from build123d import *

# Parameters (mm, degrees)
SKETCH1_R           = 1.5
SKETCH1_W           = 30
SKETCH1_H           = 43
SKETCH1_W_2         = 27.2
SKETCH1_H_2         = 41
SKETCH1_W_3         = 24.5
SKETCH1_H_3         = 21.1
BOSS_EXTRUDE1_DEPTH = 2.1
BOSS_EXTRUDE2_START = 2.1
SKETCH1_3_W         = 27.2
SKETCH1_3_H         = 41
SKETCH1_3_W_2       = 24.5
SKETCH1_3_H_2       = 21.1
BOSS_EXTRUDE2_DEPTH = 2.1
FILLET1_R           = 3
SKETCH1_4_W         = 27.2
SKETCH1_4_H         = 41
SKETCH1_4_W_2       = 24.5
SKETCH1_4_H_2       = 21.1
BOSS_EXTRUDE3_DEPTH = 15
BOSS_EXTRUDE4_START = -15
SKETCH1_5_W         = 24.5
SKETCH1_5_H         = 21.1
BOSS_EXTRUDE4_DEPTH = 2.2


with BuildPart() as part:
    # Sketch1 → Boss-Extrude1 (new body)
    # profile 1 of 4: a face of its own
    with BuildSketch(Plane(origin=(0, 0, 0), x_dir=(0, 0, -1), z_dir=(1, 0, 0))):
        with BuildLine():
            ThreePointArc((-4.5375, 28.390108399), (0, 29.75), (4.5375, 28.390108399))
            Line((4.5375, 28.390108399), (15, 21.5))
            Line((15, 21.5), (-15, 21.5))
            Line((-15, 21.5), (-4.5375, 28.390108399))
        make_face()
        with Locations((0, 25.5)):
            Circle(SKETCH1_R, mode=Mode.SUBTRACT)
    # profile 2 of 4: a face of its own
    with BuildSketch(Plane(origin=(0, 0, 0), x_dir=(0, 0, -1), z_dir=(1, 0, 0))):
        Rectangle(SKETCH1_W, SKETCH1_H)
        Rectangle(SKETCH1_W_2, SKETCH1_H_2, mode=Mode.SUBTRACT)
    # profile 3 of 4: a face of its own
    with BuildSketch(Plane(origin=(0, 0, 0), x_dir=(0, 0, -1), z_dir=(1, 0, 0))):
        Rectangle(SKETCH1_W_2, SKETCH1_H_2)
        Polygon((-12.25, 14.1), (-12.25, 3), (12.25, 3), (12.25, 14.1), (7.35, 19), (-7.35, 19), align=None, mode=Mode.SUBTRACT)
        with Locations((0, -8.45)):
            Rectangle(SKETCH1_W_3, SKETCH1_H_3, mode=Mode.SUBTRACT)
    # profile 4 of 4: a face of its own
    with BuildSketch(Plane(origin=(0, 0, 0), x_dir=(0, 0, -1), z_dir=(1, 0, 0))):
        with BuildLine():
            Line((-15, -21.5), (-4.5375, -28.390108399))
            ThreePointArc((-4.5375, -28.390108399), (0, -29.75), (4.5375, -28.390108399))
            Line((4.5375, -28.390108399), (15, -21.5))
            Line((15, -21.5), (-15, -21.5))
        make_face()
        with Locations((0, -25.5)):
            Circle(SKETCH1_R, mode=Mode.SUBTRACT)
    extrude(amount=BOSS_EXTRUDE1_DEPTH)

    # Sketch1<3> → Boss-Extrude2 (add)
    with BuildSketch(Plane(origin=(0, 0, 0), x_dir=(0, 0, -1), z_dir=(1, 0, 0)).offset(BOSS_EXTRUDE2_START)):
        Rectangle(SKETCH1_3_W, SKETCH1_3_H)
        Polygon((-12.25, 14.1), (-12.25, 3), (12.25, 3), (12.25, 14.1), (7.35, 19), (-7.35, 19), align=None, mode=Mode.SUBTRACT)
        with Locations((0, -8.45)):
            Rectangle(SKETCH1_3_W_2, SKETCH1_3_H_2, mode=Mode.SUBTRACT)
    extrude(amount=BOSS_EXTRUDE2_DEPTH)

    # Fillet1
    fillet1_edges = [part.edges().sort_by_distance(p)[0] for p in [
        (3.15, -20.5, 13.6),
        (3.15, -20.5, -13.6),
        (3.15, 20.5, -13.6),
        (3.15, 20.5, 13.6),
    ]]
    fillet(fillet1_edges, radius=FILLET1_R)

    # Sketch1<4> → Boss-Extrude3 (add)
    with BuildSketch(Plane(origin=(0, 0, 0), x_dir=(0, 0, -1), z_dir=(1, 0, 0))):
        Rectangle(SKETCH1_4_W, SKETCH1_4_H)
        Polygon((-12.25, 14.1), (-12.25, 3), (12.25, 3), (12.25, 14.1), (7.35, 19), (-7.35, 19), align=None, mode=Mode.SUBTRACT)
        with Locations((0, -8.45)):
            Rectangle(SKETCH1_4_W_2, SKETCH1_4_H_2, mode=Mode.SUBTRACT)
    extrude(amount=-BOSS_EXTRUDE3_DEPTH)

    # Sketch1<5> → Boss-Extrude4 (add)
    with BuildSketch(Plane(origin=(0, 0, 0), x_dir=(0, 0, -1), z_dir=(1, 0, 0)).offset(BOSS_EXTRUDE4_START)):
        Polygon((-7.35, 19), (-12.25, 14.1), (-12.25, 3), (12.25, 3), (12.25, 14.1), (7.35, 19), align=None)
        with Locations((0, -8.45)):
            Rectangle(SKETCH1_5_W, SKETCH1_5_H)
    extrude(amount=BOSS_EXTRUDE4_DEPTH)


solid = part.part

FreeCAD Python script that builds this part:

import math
import FreeCAD as App
import Part
import Sketcher


def edges_at(feature, points):
    """Names of the edges that pass closest to the given points."""
    edges = feature.Shape.Edges
    near = lambda p: min(range(len(edges)), key=lambda i: edges[i].distToShape(Part.Vertex(*p))[0])
    return sorted({f"Edge{near(p) + 1}" for p in points})

doc = App.newDocument("Part")
body = doc.addObject("PartDesign::Body", "Body")

# Sketch on YZ plane
sketch1 = doc.addObject("Sketcher::SketchObject", "Sketch")
body.addObject(sketch1)
sketch1.AttachmentSupport = (doc.YZ_Plane, [""])
sketch1.MapMode = "FlatFace"
sketch1.addGeometry([
    Part.ArcOfCircle(Part.Circle(App.Vector(21.5, 0, 0), App.Vector(0, 0, 1), 8.2), math.radians(-33), math.radians(33)),  # 0
    Part.LineSegment(App.Vector(28.4, 4.5, 0), App.Vector(21.5, 15, 0)),  # 1
    Part.LineSegment(App.Vector(21.5, 15, 0), App.Vector(-21.5, 15, 0)),  # 2
    Part.LineSegment(App.Vector(-21.5, 15, 0), App.Vector(-28.4, 4.5, 0)),  # 3
    Part.ArcOfCircle(Part.Circle(App.Vector(-21.5, 0, 0), App.Vector(0, 0, 1), 8.2), math.radians(147), math.radians(213)),  # 4
    Part.LineSegment(App.Vector(-28.4, -4.5, 0), App.Vector(-21.5, -15, 0)),  # 5
    Part.LineSegment(App.Vector(-21.5, -15, 0), App.Vector(21.5, -15, 0)),  # 6
    Part.LineSegment(App.Vector(21.5, -15, 0), App.Vector(28.4, -4.5, 0)),  # 7
    Part.Circle(App.Vector(25.5, 0, 0), App.Vector(0, 0, 1), 1.5),  # 8
    Part.Circle(App.Vector(-25.5, 0, 0), App.Vector(0, 0, 1), 1.5),  # 9
    Part.LineSegment(App.Vector(19, -7.3, 0), App.Vector(14.1, -12.2, 0)),  # 10
    Part.LineSegment(App.Vector(14.1, -12.2, 0), App.Vector(3, -12.2, 0)),  # 11
    Part.LineSegment(App.Vector(3, -12.2, 0), App.Vector(3, 12.2, 0)),  # 12
    Part.LineSegment(App.Vector(3, 12.2, 0), App.Vector(14.1, 12.2, 0)),  # 13
    Part.LineSegment(App.Vector(14.1, 12.2, 0), App.Vector(19, 7.3, 0)),  # 14
    Part.LineSegment(App.Vector(19, 7.3, 0), App.Vector(19, -7.3, 0)),  # 15
    Part.LineSegment(App.Vector(-19, -12.2, 0), App.Vector(-19, 12.2, 0)),  # 16
    Part.LineSegment(App.Vector(-19, 12.2, 0), App.Vector(2.1, 12.2, 0)),  # 17
    Part.LineSegment(App.Vector(2.1, 12.2, 0), App.Vector(2.1, -12.2, 0)),  # 18
    Part.LineSegment(App.Vector(2.1, -12.2, 0), App.Vector(-19, -12.2, 0)),  # 19
], False)
sketch1.addConstraint([
    Sketcher.Constraint("Tangent", 0, 2, 1, 1),
    Sketcher.Constraint("Coincident", 1, 2, 2, 1),
    Sketcher.Constraint("Coincident", 2, 2, 3, 1),
    Sketcher.Constraint("Tangent", 3, 2, 4, 1),
    Sketcher.Constraint("Tangent", 4, 2, 5, 1),
    Sketcher.Constraint("Coincident", 5, 2, 6, 1),
    Sketcher.Constraint("Coincident", 6, 2, 7, 1),
    Sketcher.Constraint("Tangent", 7, 2, 0, 1),
    Sketcher.Constraint("Coincident", 10, 2, 11, 1),
    Sketcher.Constraint("Coincident", 11, 2, 12, 1),
    Sketcher.Constraint("Coincident", 12, 2, 13, 1),
    Sketcher.Constraint("Coincident", 13, 2, 14, 1),
    Sketcher.Constraint("Coincident", 14, 2, 15, 1),
    Sketcher.Constraint("Coincident", 15, 2, 10, 1),
    Sketcher.Constraint("Coincident", 16, 2, 17, 1),
    Sketcher.Constraint("Coincident", 17, 2, 18, 1),
    Sketcher.Constraint("Coincident", 18, 2, 19, 1),
    Sketcher.Constraint("Coincident", 19, 2, 16, 1),
    Sketcher.Constraint("Horizontal", 2),
    Sketcher.Constraint("Horizontal", 6),
    Sketcher.Constraint("Horizontal", 11),
    Sketcher.Constraint("Vertical", 12),
    Sketcher.Constraint("Horizontal", 13),
    Sketcher.Constraint("Vertical", 15),
    Sketcher.Constraint("Vertical", 16),
    Sketcher.Constraint("Horizontal", 17),
    Sketcher.Constraint("Vertical", 18),
    Sketcher.Constraint("Horizontal", 19),
    Sketcher.Constraint("Equal", 0, 4),
    Sketcher.Constraint("Equal", 8, 9),
    Sketcher.Constraint("Symmetric", 0, 3, 4, 3, -1, 1),
    Sketcher.Constraint("Symmetric", 8, 3, 9, 3, -1, 1),
    Sketcher.Constraint("Symmetric", 1, 2, 5, 2, -1, 1),
    Sketcher.Constraint("Symmetric", 0, 2, 3, 2, -2),
    Sketcher.Constraint("Symmetric", 10, 2, 13, 2, -1),
    Sketcher.Constraint("PointOnObject", 8, 3, -1),
    Sketcher.Constraint("Parallel", 3, 7),
    Sketcher.Constraint("Perpendicular", 10, 14),
    Sketcher.Constraint("Horizontal", 13, 2, 16, 2),
    Sketcher.Constraint("Horizontal", 11, 2, 18, 2),
    Sketcher.Constraint("Vertical", 0, 3, 1, 2),
    Sketcher.Constraint("Equal", 10, 14),
    Sketcher.Constraint("Diameter", 8, 3.0),
    Sketcher.Constraint("DistanceX", 2, 2, 2, 1, 43.0),
    Sketcher.Constraint("Radius", 0, 8.25),
    Sketcher.Constraint("DistanceX", 11, 2, 11, 1, 11.1),
    Sketcher.Constraint("DistanceX", 17, 1, 17, 2, 21.1),
    Sketcher.Constraint("DistanceY", 12, 1, 12, 2, 24.5),
    Sketcher.Constraint("DistanceY", 15, 2, 15, 1, 14.7),
    Sketcher.Constraint("DistanceY", -1, 1, 1, 2, 15.0),
    Sketcher.Constraint("DistanceX", -1, 1, 11, 2, 3.0),
    Sketcher.Constraint("DistanceX", 16, 2, -1, 1, 19.0),
    Sketcher.Constraint("DistanceX", 0, 3, 8, 3, 4.0),
])
pad1 = doc.addObject("PartDesign::Pad", "Pad")
body.addObject(pad1)
pad1.Profile = sketch1
pad1.Length = 2.1

# Sketch on YZ plane
sketch2 = doc.addObject("Sketcher::SketchObject", "Sketch001")
body.addObject(sketch2)
sketch2.AttachmentSupport = (doc.YZ_Plane, [""])
sketch2.MapMode = "FlatFace"
sketch2.AttachmentOffset = App.Placement(App.Vector(0, 0, 2.1), App.Rotation())
sketch2.addGeometry([
    Part.LineSegment(App.Vector(20, 14, 0), App.Vector(-20, 14, 0)),  # 0
    Part.LineSegment(App.Vector(-20, 14, 0), App.Vector(-20, -14, 0)),  # 1
    Part.LineSegment(App.Vector(-20, -14, 0), App.Vector(20, -14, 0)),  # 2
    Part.LineSegment(App.Vector(20, -14, 0), App.Vector(20, 14, 0)),  # 3
    Part.LineSegment(App.Vector(-19, -12, 0), App.Vector(-19, 12, 0)),  # 4
    Part.LineSegment(App.Vector(-19, 12, 0), App.Vector(2, 12, 0)),  # 5
    Part.LineSegment(App.Vector(2, 12, 0), App.Vector(2, -12, 0)),  # 6
    Part.LineSegment(App.Vector(2, -12, 0), App.Vector(-19, -12, 0)),  # 7
    Part.LineSegment(App.Vector(3, 12, 0), App.Vector(14, 12, 0)),  # 8
    Part.LineSegment(App.Vector(14, 12, 0), App.Vector(19, 7, 0)),  # 9
    Part.LineSegment(App.Vector(19, 7, 0), App.Vector(19, -7, 0)),  # 10
    Part.LineSegment(App.Vector(19, -7, 0), App.Vector(14, -12, 0)),  # 11
    Part.LineSegment(App.Vector(14, -12, 0), App.Vector(3, -12, 0)),  # 12
    Part.LineSegment(App.Vector(3, -12, 0), App.Vector(3, 12, 0)),  # 13
], False)
sketch2.addConstraint([
    Sketcher.Constraint("Coincident", 0, 2, 1, 1),
    Sketcher.Constraint("Coincident", 1, 2, 2, 1),
    Sketcher.Constraint("Coincident", 2, 2, 3, 1),
    Sketcher.Constraint("Coincident", 3, 2, 0, 1),
    Sketcher.Constraint("Coincident", 4, 2, 5, 1),
    Sketcher.Constraint("Coincident", 5, 2, 6, 1),
    Sketcher.Constraint("Coincident", 6, 2, 7, 1),
    Sketcher.Constraint("Coincident", 7, 2, 4, 1),
    Sketcher.Constraint("Coincident", 8, 2, 9, 1),
    Sketcher.Constraint("Coincident", 9, 2, 10, 1),
    Sketcher.Constraint("Coincident", 10, 2, 11, 1),
    Sketcher.Constraint("Coincident", 11, 2, 12, 1),
    Sketcher.Constraint("Coincident", 12, 2, 13, 1),
    Sketcher.Constraint("Coincident", 13, 2, 8, 1),
    Sketcher.Constraint("Horizontal", 0),
    Sketcher.Constraint("Vertical", 1),
    Sketcher.Constraint("Horizontal", 2),
    Sketcher.Constraint("Vertical", 3),
    Sketcher.Constraint("Vertical", 4),
    Sketcher.Constraint("Horizontal", 5),
    Sketcher.Constraint("Vertical", 6),
    Sketcher.Constraint("Horizontal", 7),
    Sketcher.Constraint("Horizontal", 8),
    Sketcher.Constraint("Vertical", 10),
    Sketcher.Constraint("Horizontal", 12),
    Sketcher.Constraint("Vertical", 13),
    Sketcher.Constraint("Symmetric", 0, 2, 2, 2, -1, 1),
    Sketcher.Constraint("Symmetric", 8, 2, 11, 2, -1),
    Sketcher.Constraint("Perpendicular", 9, 11),
    Sketcher.Constraint("Horizontal", 5, 2, 8, 2),
    Sketcher.Constraint("Horizontal", 7, 2, 11, 2),
    Sketcher.Constraint("Equal", 9, 11),
    Sketcher.Constraint("DistanceX", 0, 2, 0, 1, 41.0),
    Sketcher.Constraint("DistanceX", 5, 1, 5, 2, 21.1),
    Sketcher.Constraint("DistanceX", 8, 1, 8, 2, 11.1),
    Sketcher.Constraint("DistanceY", 1, 2, 1, 1, 27.2),
    Sketcher.Constraint("DistanceY", 4, 1, 4, 2, 24.5),
    Sketcher.Constraint("DistanceY", 10, 2, 10, 1, 14.7),
    Sketcher.Constraint("DistanceX", 4, 2, -1, 1, 19.0),
    Sketcher.Constraint("DistanceX", -1, 1, 9, 2, 19.0),
])
pad2 = doc.addObject("PartDesign::Pad", "Pad001")
body.addObject(pad2)
pad2.Profile = sketch2
pad2.Length = 2.1
doc.recompute()

fillet = doc.addObject("PartDesign::Fillet", "Fillet")
body.addObject(fillet)
fillet.Base = (pad2, edges_at(pad2, [
    (3.15, -20.5, 13.6),
    (3.15, -20.5, -13.6),
    (3.15, 20.5, -13.6),
    (3.15, 20.5, 13.6),
]))
fillet.Radius = 3

# Sketch on YZ plane
sketch3 = doc.addObject("Sketcher::SketchObject", "Sketch002")
body.addObject(sketch3)
sketch3.AttachmentSupport = (doc.YZ_Plane, [""])
sketch3.MapMode = "FlatFace"
sketch3.addGeometry([
    Part.LineSegment(App.Vector(20, 14, 0), App.Vector(-20, 14, 0)),  # 0
    Part.LineSegment(App.Vector(-20, 14, 0), App.Vector(-20, -14, 0)),  # 1
    Part.LineSegment(App.Vector(-20, -14, 0), App.Vector(20, -14, 0)),  # 2
    Part.LineSegment(App.Vector(20, -14, 0), App.Vector(20, 14, 0)),  # 3
    Part.LineSegment(App.Vector(-19, -12, 0), App.Vector(-19, 12, 0)),  # 4
    Part.LineSegment(App.Vector(-19, 12, 0), App.Vector(2, 12, 0)),  # 5
    Part.LineSegment(App.Vector(2, 12, 0), App.Vector(2, -12, 0)),  # 6
    Part.LineSegment(App.Vector(2, -12, 0), App.Vector(-19, -12, 0)),  # 7
    Part.LineSegment(App.Vector(3, 12, 0), App.Vector(14, 12, 0)),  # 8
    Part.LineSegment(App.Vector(14, 12, 0), App.Vector(19, 7, 0)),  # 9
    Part.LineSegment(App.Vector(19, 7, 0), App.Vector(19, -7, 0)),  # 10
    Part.LineSegment(App.Vector(19, -7, 0), App.Vector(14, -12, 0)),  # 11
    Part.LineSegment(App.Vector(14, -12, 0), App.Vector(3, -12, 0)),  # 12
    Part.LineSegment(App.Vector(3, -12, 0), App.Vector(3, 12, 0)),  # 13
], False)
sketch3.addConstraint([
    Sketcher.Constraint("Coincident", 0, 2, 1, 1),
    Sketcher.Constraint("Coincident", 1, 2, 2, 1),
    Sketcher.Constraint("Coincident", 2, 2, 3, 1),
    Sketcher.Constraint("Coincident", 3, 2, 0, 1),
    Sketcher.Constraint("Coincident", 4, 2, 5, 1),
    Sketcher.Constraint("Coincident", 5, 2, 6, 1),
    Sketcher.Constraint("Coincident", 6, 2, 7, 1),
    Sketcher.Constraint("Coincident", 7, 2, 4, 1),
    Sketcher.Constraint("Coincident", 8, 2, 9, 1),
    Sketcher.Constraint("Coincident", 9, 2, 10, 1),
    Sketcher.Constraint("Coincident", 10, 2, 11, 1),
    Sketcher.Constraint("Coincident", 11, 2, 12, 1),
    Sketcher.Constraint("Coincident", 12, 2, 13, 1),
    Sketcher.Constraint("Coincident", 13, 2, 8, 1),
    Sketcher.Constraint("Horizontal", 0),
    Sketcher.Constraint("Vertical", 1),
    Sketcher.Constraint("Horizontal", 2),
    Sketcher.Constraint("Vertical", 3),
    Sketcher.Constraint("Vertical", 4),
    Sketcher.Constraint("Horizontal", 5),
    Sketcher.Constraint("Vertical", 6),
    Sketcher.Constraint("Horizontal", 7),
    Sketcher.Constraint("Horizontal", 8),
    Sketcher.Constraint("Vertical", 10),
    Sketcher.Constraint("Horizontal", 12),
    Sketcher.Constraint("Vertical", 13),
    Sketcher.Constraint("Symmetric", 0, 2, 2, 2, -1, 1),
    Sketcher.Constraint("Symmetric", 8, 2, 11, 2, -1),
    Sketcher.Constraint("Perpendicular", 9, 11),
    Sketcher.Constraint("Horizontal", 5, 2, 8, 2),
    Sketcher.Constraint("Horizontal", 7, 2, 11, 2),
    Sketcher.Constraint("Equal", 9, 11),
    Sketcher.Constraint("DistanceX", 0, 2, 0, 1, 41.0),
    Sketcher.Constraint("DistanceX", 5, 1, 5, 2, 21.1),
    Sketcher.Constraint("DistanceX", 8, 1, 8, 2, 11.1),
    Sketcher.Constraint("DistanceY", 1, 2, 1, 1, 27.2),
    Sketcher.Constraint("DistanceY", 4, 1, 4, 2, 24.5),
    Sketcher.Constraint("DistanceY", 10, 2, 10, 1, 14.7),
    Sketcher.Constraint("DistanceX", 4, 2, -1, 1, 19.0),
    Sketcher.Constraint("DistanceX", -1, 1, 9, 2, 19.0),
])
pad3 = doc.addObject("PartDesign::Pad", "Pad002")
body.addObject(pad3)
pad3.Profile = sketch3
pad3.Length = 15
pad3.Reversed = True

# Sketch on YZ plane
sketch4 = doc.addObject("Sketcher::SketchObject", "Sketch003")
body.addObject(sketch4)
sketch4.AttachmentSupport = (doc.YZ_Plane, [""])
sketch4.MapMode = "FlatFace"
sketch4.AttachmentOffset = App.Placement(App.Vector(0, 0, -15), App.Rotation())
sketch4.addGeometry([
    Part.LineSegment(App.Vector(19, 7, 0), App.Vector(14, 12, 0)),  # 0
    Part.LineSegment(App.Vector(14, 12, 0), App.Vector(3, 12, 0)),  # 1
    Part.LineSegment(App.Vector(3, 12, 0), App.Vector(3, -12, 0)),  # 2
    Part.LineSegment(App.Vector(3, -12, 0), App.Vector(14, -12, 0)),  # 3
    Part.LineSegment(App.Vector(14, -12, 0), App.Vector(19, -7, 0)),  # 4
    Part.LineSegment(App.Vector(19, -7, 0), App.Vector(19, 7, 0)),  # 5
    Part.LineSegment(App.Vector(2, 12, 0), App.Vector(-19, 12, 0)),  # 6
    Part.LineSegment(App.Vector(-19, 12, 0), App.Vector(-19, -12, 0)),  # 7
    Part.LineSegment(App.Vector(-19, -12, 0), App.Vector(2, -12, 0)),  # 8
    Part.LineSegment(App.Vector(2, -12, 0), App.Vector(2, 12, 0)),  # 9
], False)
sketch4.addConstraint([
    Sketcher.Constraint("Coincident", 0, 2, 1, 1),
    Sketcher.Constraint("Coincident", 1, 2, 2, 1),
    Sketcher.Constraint("Coincident", 2, 2, 3, 1),
    Sketcher.Constraint("Coincident", 3, 2, 4, 1),
    Sketcher.Constraint("Coincident", 4, 2, 5, 1),
    Sketcher.Constraint("Coincident", 5, 2, 0, 1),
    Sketcher.Constraint("Coincident", 6, 2, 7, 1),
    Sketcher.Constraint("Coincident", 7, 2, 8, 1),
    Sketcher.Constraint("Coincident", 8, 2, 9, 1),
    Sketcher.Constraint("Coincident", 9, 2, 6, 1),
    Sketcher.Constraint("Horizontal", 1),
    Sketcher.Constraint("Vertical", 2),
    Sketcher.Constraint("Horizontal", 3),
    Sketcher.Constraint("Vertical", 5),
    Sketcher.Constraint("Horizontal", 6),
    Sketcher.Constraint("Vertical", 7),
    Sketcher.Constraint("Horizontal", 8),
    Sketcher.Constraint("Vertical", 9),
    Sketcher.Constraint("Symmetric", 0, 2, 3, 2, -1),
    Sketcher.Constraint("Perpendicular", 0, 4),
    Sketcher.Constraint("Horizontal", 1, 2, 6, 2),
    Sketcher.Constraint("Horizontal", 3, 2, 7, 2),
    Sketcher.Constraint("Equal", 0, 4),
    Sketcher.Constraint("DistanceX", 1, 2, 1, 1, 11.1),
    Sketcher.Constraint("DistanceX", 6, 2, 6, 1, 21.1),
    Sketcher.Constraint("DistanceY", 2, 2, 2, 1, 24.5),
    Sketcher.Constraint("DistanceY", 5, 1, 5, 2, 14.7),
    Sketcher.Constraint("DistanceX", -1, 1, 1, 2, 3.0),
    Sketcher.Constraint("DistanceX", 6, 2, -1, 1, 19.0),
])
pad4 = doc.addObject("PartDesign::Pad", "Pad003")
body.addObject(pad4)
pad4.Profile = sketch4
pad4.Length = 2.2

doc.recompute()
